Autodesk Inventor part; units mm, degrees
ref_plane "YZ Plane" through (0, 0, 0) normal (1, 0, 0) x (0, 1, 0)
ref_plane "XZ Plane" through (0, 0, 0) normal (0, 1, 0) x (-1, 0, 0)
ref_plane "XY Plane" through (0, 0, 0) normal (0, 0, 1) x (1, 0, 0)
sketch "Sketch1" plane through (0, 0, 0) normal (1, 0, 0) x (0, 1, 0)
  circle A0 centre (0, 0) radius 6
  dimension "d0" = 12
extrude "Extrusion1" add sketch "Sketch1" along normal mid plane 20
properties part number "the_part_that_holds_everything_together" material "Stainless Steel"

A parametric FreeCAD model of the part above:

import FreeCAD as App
import Part
import Sketcher
from FreeCAD import Vector
Q = App.Units.Quantity

doc = App.newDocument("Part")
body = doc.addObject("PartDesign::Body", "Body")

# Sketch on YZ plane
sketch1 = body.newObject("Sketcher::SketchObject", "Sketch")
sketch1.AttachmentSupport = (doc.getObject("YZ_Plane"), [""])
sketch1.MapMode = "FlatFace"
sketch1.addGeometry(Part.Circle(Vector(0, 0, 0), Vector(0, 0, 1), 6), False)
sketch1.addConstraint(Sketcher.Constraint("Coincident", 0, 3, -1, 1))
sketch1.addConstraint(Sketcher.Constraint("Diameter", 0, Q("12 mm")))
pad1 = body.newObject("PartDesign::Pad", "Pad")
pad1.Profile = sketch1
pad1.Length = 20
pad1.Midplane = True

doc.recompute()
